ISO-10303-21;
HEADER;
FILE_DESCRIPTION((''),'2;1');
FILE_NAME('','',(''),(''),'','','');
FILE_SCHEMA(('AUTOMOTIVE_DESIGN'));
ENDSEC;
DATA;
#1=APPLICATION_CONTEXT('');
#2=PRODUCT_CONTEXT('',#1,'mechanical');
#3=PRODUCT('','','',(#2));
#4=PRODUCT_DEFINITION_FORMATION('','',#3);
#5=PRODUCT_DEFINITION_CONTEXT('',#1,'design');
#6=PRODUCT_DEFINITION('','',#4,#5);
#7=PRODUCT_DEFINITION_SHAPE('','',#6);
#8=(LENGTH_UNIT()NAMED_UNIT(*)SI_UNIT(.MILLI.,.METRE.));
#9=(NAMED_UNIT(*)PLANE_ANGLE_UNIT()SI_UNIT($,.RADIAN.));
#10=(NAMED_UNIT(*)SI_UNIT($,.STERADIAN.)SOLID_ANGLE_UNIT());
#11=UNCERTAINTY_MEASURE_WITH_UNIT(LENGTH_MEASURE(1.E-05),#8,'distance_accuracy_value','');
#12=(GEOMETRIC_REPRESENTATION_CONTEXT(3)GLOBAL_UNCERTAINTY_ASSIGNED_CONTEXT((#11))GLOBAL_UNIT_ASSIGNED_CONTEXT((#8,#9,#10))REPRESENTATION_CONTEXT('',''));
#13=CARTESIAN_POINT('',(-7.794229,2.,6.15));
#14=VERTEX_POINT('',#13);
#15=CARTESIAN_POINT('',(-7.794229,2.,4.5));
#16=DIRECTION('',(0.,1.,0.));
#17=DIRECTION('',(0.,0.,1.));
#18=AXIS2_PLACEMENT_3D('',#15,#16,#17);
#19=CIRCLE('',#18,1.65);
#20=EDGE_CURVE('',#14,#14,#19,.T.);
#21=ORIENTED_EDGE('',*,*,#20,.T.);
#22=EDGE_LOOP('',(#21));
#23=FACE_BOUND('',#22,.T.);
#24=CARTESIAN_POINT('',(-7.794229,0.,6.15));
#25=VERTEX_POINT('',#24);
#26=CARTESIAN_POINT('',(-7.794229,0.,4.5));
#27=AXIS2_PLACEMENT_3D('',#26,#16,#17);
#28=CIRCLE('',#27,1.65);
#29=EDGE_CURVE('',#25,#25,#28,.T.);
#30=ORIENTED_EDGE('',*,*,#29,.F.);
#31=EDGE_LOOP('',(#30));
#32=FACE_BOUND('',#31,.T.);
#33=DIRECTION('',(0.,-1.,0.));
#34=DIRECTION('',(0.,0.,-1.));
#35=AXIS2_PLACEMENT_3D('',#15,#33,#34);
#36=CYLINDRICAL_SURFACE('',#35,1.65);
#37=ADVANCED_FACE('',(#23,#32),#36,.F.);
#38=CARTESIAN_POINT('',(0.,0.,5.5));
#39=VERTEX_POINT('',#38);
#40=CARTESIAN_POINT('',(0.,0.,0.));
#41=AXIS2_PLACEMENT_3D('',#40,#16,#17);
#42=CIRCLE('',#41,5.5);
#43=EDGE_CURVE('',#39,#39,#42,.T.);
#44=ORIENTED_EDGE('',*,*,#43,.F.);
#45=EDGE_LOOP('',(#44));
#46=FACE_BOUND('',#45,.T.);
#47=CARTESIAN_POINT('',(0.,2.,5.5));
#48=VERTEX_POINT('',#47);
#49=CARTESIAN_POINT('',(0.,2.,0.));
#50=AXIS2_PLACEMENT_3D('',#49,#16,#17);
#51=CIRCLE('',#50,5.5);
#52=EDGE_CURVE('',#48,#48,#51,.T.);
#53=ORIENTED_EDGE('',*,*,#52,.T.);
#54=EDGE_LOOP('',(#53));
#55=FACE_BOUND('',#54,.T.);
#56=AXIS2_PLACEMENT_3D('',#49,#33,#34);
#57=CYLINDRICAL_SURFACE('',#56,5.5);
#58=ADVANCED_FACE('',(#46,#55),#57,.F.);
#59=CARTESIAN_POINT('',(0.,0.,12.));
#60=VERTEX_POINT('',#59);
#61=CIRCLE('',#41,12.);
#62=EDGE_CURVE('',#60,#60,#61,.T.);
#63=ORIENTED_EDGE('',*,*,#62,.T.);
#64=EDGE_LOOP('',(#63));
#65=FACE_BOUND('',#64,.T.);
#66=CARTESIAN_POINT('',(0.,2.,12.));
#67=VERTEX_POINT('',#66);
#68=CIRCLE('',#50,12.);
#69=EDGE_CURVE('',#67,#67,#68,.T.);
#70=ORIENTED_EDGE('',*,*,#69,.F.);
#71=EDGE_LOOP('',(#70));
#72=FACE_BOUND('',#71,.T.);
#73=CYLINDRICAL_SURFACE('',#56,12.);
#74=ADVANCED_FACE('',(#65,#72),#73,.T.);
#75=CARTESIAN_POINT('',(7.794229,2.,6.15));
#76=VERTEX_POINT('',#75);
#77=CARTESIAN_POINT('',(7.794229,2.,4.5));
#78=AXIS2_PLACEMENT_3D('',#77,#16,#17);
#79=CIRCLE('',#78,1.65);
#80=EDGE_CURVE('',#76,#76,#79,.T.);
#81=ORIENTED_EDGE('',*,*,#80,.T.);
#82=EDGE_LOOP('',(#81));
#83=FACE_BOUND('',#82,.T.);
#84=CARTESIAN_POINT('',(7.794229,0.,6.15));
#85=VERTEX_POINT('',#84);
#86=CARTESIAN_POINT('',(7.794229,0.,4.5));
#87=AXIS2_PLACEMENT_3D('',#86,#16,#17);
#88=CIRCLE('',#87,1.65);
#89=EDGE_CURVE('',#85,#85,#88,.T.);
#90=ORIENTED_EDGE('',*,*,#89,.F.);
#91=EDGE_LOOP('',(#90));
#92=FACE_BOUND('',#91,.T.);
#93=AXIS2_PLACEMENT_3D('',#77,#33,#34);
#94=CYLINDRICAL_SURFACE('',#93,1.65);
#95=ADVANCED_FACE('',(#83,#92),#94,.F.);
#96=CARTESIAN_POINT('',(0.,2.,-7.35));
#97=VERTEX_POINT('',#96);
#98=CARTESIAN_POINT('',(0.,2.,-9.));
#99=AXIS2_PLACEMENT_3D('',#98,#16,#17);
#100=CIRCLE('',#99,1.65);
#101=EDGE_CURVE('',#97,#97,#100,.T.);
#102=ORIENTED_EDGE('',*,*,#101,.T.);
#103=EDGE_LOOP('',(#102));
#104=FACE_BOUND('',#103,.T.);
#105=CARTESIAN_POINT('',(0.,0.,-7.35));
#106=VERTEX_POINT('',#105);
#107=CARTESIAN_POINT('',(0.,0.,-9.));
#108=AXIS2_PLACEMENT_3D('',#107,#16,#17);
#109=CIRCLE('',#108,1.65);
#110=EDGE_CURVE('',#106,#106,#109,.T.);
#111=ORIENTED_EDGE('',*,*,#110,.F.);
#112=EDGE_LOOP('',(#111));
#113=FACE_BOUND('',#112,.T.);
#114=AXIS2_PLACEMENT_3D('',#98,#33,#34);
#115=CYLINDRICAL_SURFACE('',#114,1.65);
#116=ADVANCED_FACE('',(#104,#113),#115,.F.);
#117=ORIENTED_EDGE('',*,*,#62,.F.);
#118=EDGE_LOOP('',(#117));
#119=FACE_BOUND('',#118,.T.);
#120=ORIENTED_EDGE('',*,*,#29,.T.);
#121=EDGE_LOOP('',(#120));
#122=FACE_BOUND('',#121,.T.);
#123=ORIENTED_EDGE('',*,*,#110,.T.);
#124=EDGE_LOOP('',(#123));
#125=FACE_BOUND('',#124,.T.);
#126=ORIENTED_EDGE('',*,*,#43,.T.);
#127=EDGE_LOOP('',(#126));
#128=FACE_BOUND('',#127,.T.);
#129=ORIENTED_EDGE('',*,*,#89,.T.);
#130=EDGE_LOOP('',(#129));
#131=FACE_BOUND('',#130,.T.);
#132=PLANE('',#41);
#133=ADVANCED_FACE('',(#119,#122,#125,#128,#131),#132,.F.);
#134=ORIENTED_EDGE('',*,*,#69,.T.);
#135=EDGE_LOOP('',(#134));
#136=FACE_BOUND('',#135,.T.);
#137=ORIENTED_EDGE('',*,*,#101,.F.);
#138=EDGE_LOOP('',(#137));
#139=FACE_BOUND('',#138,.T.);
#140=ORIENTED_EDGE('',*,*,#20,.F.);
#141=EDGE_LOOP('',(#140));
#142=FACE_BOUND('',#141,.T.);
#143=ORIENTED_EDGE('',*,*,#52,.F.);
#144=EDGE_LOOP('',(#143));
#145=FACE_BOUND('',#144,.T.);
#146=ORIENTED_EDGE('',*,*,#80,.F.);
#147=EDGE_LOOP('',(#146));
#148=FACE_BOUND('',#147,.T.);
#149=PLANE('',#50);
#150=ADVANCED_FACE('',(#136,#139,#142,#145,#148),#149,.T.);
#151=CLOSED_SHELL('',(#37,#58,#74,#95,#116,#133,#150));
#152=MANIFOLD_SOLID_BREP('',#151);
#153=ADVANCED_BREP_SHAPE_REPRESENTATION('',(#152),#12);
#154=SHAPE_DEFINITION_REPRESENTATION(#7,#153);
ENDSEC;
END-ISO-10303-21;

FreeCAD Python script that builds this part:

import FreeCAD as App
import Part
import Sketcher
from FreeCAD import Vector
Q = App.Units.Quantity

doc = App.newDocument("Part")
params = doc.addObject("Spreadsheet::Sheet", "Params")
for row, (alias, value) in enumerate([
    ("sketch1_diameter", "24 mm"),
    ("sketch1_diameter2", "11 mm"),
    ("sketch1_diameter3", "3.3 mm"),
    ("pad1_length", "2 mm"),
], start=1):
    params.set(f"A{row}", alias)
    params.set(f"B{row}", "=" + value)
    params.setAlias(f"B{row}", alias)

body = doc.addObject("PartDesign::Body", "Body")

# Sketch on XZ plane
sketch1 = body.newObject("Sketcher::SketchObject", "Sketch")
sketch1.AttachmentSupport = (doc.getObject("XZ_Plane"), [""])
sketch1.MapMode = "FlatFace"
sketch1.addGeometry(Part.Circle(Vector(0, 0, 0), Vector(0, 0, 1), 12), False)
sketch1.addGeometry(Part.Circle(Vector(0, -9, 0), Vector(0, 0, 1), 1.6), False)
sketch1.addGeometry(Part.Circle(Vector(-7.8, 4.5, 0), Vector(0, 0, 1), 1.6), False)
sketch1.addGeometry(Part.Circle(Vector(0, 0, 0), Vector(0, 0, 1), 5.5), False)
sketch1.addGeometry(Part.Circle(Vector(7.8, 4.5, 0), Vector(0, 0, 1), 1.6), False)
sketch1.addConstraint(Sketcher.Constraint("Coincident", 0, 3, -1, 1))
sketch1.addConstraint(Sketcher.Constraint("Coincident", 3, 3, -1, 1))
sketch1.addConstraint(Sketcher.Constraint("Equal", 1, 2))
sketch1.addConstraint(Sketcher.Constraint("Equal", 2, 4))
sketch1.addConstraint(Sketcher.Constraint("Symmetric", 2, 3, 4, 3, -2))
sketch1.addConstraint(Sketcher.Constraint("PointOnObject", 1, 3, -2))
sketch1.addConstraint(Sketcher.Constraint("Diameter", 0, Q("24 mm")))
sketch1.addConstraint(Sketcher.Constraint("Diameter", 3, Q("11 mm")))
sketch1.addConstraint(Sketcher.Constraint("Diameter", 1, Q("3.3 mm")))
sketch1.addConstraint(Sketcher.Constraint("DistanceY", 1, 3, -1, 1, Q("9 mm")))
sketch1.addConstraint(Sketcher.Constraint("DistanceY", -1, 1, 2, 3, Q("4.5 mm")))
sketch1.addConstraint(Sketcher.Constraint("DistanceX", 2, 3, -1, 1, Q("7.794229 mm")))
sketch1.setExpression("Constraints[6]", "Params.sketch1_diameter")
sketch1.setExpression("Constraints[7]", "Params.sketch1_diameter2")
sketch1.setExpression("Constraints[8]", "Params.sketch1_diameter3")
pad1 = body.newObject("PartDesign::Pad", "Pad")
pad1.Profile = sketch1
pad1.setExpression("Length", "Params.pad1_length")
pad1.Reversed = True

doc.recompute()
